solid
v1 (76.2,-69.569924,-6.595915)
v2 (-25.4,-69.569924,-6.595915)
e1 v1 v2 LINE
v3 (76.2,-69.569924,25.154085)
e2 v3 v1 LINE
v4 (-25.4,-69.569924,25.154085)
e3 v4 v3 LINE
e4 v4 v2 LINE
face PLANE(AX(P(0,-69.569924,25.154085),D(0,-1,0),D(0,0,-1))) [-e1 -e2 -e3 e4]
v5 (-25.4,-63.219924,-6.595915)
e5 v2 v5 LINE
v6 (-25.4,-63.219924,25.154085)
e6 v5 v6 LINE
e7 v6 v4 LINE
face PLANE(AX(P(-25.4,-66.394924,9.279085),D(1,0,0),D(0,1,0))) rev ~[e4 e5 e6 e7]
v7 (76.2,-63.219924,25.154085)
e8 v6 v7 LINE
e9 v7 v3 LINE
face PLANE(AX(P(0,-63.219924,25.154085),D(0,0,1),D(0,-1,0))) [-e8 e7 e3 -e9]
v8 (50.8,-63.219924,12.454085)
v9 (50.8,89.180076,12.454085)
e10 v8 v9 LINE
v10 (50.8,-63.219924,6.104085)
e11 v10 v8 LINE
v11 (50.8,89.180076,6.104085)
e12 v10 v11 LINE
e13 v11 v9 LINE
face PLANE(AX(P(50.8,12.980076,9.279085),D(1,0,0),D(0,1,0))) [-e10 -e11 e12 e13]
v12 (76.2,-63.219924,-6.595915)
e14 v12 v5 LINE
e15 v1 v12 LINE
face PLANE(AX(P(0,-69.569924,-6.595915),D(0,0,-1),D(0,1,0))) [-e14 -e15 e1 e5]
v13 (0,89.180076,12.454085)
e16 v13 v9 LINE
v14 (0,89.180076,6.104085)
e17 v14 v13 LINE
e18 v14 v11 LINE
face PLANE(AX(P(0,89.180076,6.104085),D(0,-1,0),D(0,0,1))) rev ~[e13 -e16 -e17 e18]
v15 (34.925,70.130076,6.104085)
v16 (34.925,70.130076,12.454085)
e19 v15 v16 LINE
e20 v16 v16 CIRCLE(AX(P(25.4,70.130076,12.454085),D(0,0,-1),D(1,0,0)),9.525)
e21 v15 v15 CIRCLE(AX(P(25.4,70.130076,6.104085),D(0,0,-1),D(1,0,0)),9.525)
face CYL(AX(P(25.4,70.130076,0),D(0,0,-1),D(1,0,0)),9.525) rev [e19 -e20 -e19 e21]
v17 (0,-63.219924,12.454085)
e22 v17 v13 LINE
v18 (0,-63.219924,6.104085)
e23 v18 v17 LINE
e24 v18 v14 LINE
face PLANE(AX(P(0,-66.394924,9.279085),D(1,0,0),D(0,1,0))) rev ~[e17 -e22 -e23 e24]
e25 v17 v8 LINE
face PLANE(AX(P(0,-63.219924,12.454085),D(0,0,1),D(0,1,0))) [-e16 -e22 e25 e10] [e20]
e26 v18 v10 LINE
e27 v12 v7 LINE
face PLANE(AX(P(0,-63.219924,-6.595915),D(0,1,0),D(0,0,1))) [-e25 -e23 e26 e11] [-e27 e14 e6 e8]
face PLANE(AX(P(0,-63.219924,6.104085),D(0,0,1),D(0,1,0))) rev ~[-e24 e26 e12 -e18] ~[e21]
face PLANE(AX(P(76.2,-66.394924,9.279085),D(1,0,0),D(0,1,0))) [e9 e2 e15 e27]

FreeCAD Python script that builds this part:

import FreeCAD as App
import Part
import Sketcher
from FreeCAD import Vector
Q = App.Units.Quantity

doc = App.newDocument("Part")
params = doc.addObject("Spreadsheet::Sheet", "Params")
for row, (alias, value) in enumerate([
    ("sketch1_width", "6 in"),
    ("sketch1_height", "0.25 in"),
    ("pad1_length", "2 in"),
    ("sketch2_width", "0.25 in"),
    ("sketch2_height", "1.25 in"),
    ("pad2_length", "3 in"),
    ("pad2_length2", "1 in"),
    ("sketch3_diameter", "0.75 in"),
], start=1):
    params.set(f"A{row}", alias)
    params.set(f"B{row}", "=" + value)
    params.setAlias(f"B{row}", alias)

body = doc.addObject("PartDesign::Body", "Body")

sketch1 = body.newObject("Sketcher::SketchObject", "Sketch")
sketch1.AttachmentSupport = (doc.getObject("YZ_Plane"), [""])
sketch1.MapMode = "FlatFace"
sketch1.addGeometry(Part.LineSegment(Vector(-63, 12, 0), Vector(-63, 6, 0)), False)
sketch1.addGeometry(Part.LineSegment(Vector(-63, 6, 0), Vector(89, 6, 0)), False)
sketch1.addGeometry(Part.LineSegment(Vector(89, 6, 0), Vector(89, 12, 0)), False)
sketch1.addGeometry(Part.LineSegment(Vector(89, 12, 0), Vector(-63, 12, 0)), False)
sketch1.addConstraint(Sketcher.Constraint("Coincident", 0, 2, 1, 1))
sketch1.addConstraint(Sketcher.Constraint("Coincident", 1, 2, 2, 1))
sketch1.addConstraint(Sketcher.Constraint("Coincident", 2, 2, 3, 1))
sketch1.addConstraint(Sketcher.Constraint("Coincident", 3, 2, 0, 1))
sketch1.addConstraint(Sketcher.Constraint("Vertical", 0))
sketch1.addConstraint(Sketcher.Constraint("Horizontal", 1))
sketch1.addConstraint(Sketcher.Constraint("Vertical", 2))
sketch1.addConstraint(Sketcher.Constraint("Horizontal", 3))
sketch1.addConstraint(Sketcher.Constraint("DistanceX", 1, 1, 1, 2, Q("6 in")))
sketch1.addConstraint(Sketcher.Constraint("DistanceY", 0, 2, 0, 1, Q("0.25 in")))
sketch1.addConstraint(Sketcher.Constraint("DistanceX", 0, 2, -1, 1, 63.219924))
sketch1.addConstraint(Sketcher.Constraint("DistanceY", -1, 1, 0, 2, 6.104085))
sketch1.setExpression("Constraints[8]", "Params.sketch1_width")
sketch1.setExpression("Constraints[9]", "Params.sketch1_height")
pad1 = body.newObject("PartDesign::Pad", "Pad")
pad1.Profile = sketch1
pad1.setExpression("Length", "Params.pad1_length")

sketch2 = body.newObject("Sketcher::SketchObject", "Sketch001")
sketch2.AttachmentSupport = (doc.getObject("YZ_Plane"), [""])
sketch2.MapMode = "FlatFace"
sketch2.addGeometry(Part.LineSegment(Vector(-63, -7, 0), Vector(-63, 25, 0)), False)
sketch2.addGeometry(Part.LineSegment(Vector(-63, 25, 0), Vector(-70, 25, 0)), False)
sketch2.addGeometry(Part.LineSegment(Vector(-70, 25, 0), Vector(-70, -7, 0)), False)
sketch2.addGeometry(Part.LineSegment(Vector(-70, -7, 0), Vector(-63, -7, 0)), False)
sketch2.addConstraint(Sketcher.Constraint("Coincident", 0, 2, 1, 1))
sketch2.addConstraint(Sketcher.Constraint("Coincident", 1, 2, 2, 1))
sketch2.addConstraint(Sketcher.Constraint("Coincident", 2, 2, 3, 1))
sketch2.addConstraint(Sketcher.Constraint("Coincident", 3, 2, 0, 1))
sketch2.addConstraint(Sketcher.Constraint("Vertical", 0))
sketch2.addConstraint(Sketcher.Constraint("Horizontal", 1))
sketch2.addConstraint(Sketcher.Constraint("Vertical", 2))
sketch2.addConstraint(Sketcher.Constraint("Horizontal", 3))
sketch2.addConstraint(Sketcher.Constraint("DistanceX", 1, 2, 1, 1, Q("0.25 in")))
sketch2.addConstraint(Sketcher.Constraint("DistanceY", 0, 1, 0, 2, Q("1.25 in")))
sketch2.addConstraint(Sketcher.Constraint("DistanceX", 0, 2, -1, 1, 63.219924))
sketch2.addConstraint(Sketcher.Constraint("DistanceY", -1, 1, 0, 2, 25.154085))
sketch2.setExpression("Constraints[8]", "Params.sketch2_width")
sketch2.setExpression("Constraints[9]", "Params.sketch2_height")
pad2 = body.newObject("PartDesign::Pad", "Pad001")
pad2.Profile = sketch2
pad2.Type = "TwoLengths"
pad2.setExpression("Length", "Params.pad2_length")
pad2.setExpression("Length2", "Params.pad2_length2")

sketch3 = body.newObject("Sketcher::SketchObject", "Sketch002")
sketch3.AttachmentSupport = (doc.getObject("XY_Plane"), [""])
sketch3.MapMode = "FlatFace"
sketch3.addGeometry(Part.Circle(Vector(25, 70, 0), Vector(0, 0, 1), 10), False)
sketch3.addConstraint(Sketcher.Constraint("Diameter", 0, Q("0.75 in")))
sketch3.addConstraint(Sketcher.Constraint("DistanceX", -1, 1, 0, 3, Q("1 in")))
sketch3.addConstraint(Sketcher.Constraint("DistanceY", -1, 1, 0, 3, 70.130076))
sketch3.setExpression("Constraints[0]", "Params.sketch3_diameter")
pocket1 = body.newObject("PartDesign::Pocket", "Pocket")
pocket1.Profile = sketch3
pocket1.Type = "ThroughAll"
pocket1.Reversed = True

doc.recompute()
